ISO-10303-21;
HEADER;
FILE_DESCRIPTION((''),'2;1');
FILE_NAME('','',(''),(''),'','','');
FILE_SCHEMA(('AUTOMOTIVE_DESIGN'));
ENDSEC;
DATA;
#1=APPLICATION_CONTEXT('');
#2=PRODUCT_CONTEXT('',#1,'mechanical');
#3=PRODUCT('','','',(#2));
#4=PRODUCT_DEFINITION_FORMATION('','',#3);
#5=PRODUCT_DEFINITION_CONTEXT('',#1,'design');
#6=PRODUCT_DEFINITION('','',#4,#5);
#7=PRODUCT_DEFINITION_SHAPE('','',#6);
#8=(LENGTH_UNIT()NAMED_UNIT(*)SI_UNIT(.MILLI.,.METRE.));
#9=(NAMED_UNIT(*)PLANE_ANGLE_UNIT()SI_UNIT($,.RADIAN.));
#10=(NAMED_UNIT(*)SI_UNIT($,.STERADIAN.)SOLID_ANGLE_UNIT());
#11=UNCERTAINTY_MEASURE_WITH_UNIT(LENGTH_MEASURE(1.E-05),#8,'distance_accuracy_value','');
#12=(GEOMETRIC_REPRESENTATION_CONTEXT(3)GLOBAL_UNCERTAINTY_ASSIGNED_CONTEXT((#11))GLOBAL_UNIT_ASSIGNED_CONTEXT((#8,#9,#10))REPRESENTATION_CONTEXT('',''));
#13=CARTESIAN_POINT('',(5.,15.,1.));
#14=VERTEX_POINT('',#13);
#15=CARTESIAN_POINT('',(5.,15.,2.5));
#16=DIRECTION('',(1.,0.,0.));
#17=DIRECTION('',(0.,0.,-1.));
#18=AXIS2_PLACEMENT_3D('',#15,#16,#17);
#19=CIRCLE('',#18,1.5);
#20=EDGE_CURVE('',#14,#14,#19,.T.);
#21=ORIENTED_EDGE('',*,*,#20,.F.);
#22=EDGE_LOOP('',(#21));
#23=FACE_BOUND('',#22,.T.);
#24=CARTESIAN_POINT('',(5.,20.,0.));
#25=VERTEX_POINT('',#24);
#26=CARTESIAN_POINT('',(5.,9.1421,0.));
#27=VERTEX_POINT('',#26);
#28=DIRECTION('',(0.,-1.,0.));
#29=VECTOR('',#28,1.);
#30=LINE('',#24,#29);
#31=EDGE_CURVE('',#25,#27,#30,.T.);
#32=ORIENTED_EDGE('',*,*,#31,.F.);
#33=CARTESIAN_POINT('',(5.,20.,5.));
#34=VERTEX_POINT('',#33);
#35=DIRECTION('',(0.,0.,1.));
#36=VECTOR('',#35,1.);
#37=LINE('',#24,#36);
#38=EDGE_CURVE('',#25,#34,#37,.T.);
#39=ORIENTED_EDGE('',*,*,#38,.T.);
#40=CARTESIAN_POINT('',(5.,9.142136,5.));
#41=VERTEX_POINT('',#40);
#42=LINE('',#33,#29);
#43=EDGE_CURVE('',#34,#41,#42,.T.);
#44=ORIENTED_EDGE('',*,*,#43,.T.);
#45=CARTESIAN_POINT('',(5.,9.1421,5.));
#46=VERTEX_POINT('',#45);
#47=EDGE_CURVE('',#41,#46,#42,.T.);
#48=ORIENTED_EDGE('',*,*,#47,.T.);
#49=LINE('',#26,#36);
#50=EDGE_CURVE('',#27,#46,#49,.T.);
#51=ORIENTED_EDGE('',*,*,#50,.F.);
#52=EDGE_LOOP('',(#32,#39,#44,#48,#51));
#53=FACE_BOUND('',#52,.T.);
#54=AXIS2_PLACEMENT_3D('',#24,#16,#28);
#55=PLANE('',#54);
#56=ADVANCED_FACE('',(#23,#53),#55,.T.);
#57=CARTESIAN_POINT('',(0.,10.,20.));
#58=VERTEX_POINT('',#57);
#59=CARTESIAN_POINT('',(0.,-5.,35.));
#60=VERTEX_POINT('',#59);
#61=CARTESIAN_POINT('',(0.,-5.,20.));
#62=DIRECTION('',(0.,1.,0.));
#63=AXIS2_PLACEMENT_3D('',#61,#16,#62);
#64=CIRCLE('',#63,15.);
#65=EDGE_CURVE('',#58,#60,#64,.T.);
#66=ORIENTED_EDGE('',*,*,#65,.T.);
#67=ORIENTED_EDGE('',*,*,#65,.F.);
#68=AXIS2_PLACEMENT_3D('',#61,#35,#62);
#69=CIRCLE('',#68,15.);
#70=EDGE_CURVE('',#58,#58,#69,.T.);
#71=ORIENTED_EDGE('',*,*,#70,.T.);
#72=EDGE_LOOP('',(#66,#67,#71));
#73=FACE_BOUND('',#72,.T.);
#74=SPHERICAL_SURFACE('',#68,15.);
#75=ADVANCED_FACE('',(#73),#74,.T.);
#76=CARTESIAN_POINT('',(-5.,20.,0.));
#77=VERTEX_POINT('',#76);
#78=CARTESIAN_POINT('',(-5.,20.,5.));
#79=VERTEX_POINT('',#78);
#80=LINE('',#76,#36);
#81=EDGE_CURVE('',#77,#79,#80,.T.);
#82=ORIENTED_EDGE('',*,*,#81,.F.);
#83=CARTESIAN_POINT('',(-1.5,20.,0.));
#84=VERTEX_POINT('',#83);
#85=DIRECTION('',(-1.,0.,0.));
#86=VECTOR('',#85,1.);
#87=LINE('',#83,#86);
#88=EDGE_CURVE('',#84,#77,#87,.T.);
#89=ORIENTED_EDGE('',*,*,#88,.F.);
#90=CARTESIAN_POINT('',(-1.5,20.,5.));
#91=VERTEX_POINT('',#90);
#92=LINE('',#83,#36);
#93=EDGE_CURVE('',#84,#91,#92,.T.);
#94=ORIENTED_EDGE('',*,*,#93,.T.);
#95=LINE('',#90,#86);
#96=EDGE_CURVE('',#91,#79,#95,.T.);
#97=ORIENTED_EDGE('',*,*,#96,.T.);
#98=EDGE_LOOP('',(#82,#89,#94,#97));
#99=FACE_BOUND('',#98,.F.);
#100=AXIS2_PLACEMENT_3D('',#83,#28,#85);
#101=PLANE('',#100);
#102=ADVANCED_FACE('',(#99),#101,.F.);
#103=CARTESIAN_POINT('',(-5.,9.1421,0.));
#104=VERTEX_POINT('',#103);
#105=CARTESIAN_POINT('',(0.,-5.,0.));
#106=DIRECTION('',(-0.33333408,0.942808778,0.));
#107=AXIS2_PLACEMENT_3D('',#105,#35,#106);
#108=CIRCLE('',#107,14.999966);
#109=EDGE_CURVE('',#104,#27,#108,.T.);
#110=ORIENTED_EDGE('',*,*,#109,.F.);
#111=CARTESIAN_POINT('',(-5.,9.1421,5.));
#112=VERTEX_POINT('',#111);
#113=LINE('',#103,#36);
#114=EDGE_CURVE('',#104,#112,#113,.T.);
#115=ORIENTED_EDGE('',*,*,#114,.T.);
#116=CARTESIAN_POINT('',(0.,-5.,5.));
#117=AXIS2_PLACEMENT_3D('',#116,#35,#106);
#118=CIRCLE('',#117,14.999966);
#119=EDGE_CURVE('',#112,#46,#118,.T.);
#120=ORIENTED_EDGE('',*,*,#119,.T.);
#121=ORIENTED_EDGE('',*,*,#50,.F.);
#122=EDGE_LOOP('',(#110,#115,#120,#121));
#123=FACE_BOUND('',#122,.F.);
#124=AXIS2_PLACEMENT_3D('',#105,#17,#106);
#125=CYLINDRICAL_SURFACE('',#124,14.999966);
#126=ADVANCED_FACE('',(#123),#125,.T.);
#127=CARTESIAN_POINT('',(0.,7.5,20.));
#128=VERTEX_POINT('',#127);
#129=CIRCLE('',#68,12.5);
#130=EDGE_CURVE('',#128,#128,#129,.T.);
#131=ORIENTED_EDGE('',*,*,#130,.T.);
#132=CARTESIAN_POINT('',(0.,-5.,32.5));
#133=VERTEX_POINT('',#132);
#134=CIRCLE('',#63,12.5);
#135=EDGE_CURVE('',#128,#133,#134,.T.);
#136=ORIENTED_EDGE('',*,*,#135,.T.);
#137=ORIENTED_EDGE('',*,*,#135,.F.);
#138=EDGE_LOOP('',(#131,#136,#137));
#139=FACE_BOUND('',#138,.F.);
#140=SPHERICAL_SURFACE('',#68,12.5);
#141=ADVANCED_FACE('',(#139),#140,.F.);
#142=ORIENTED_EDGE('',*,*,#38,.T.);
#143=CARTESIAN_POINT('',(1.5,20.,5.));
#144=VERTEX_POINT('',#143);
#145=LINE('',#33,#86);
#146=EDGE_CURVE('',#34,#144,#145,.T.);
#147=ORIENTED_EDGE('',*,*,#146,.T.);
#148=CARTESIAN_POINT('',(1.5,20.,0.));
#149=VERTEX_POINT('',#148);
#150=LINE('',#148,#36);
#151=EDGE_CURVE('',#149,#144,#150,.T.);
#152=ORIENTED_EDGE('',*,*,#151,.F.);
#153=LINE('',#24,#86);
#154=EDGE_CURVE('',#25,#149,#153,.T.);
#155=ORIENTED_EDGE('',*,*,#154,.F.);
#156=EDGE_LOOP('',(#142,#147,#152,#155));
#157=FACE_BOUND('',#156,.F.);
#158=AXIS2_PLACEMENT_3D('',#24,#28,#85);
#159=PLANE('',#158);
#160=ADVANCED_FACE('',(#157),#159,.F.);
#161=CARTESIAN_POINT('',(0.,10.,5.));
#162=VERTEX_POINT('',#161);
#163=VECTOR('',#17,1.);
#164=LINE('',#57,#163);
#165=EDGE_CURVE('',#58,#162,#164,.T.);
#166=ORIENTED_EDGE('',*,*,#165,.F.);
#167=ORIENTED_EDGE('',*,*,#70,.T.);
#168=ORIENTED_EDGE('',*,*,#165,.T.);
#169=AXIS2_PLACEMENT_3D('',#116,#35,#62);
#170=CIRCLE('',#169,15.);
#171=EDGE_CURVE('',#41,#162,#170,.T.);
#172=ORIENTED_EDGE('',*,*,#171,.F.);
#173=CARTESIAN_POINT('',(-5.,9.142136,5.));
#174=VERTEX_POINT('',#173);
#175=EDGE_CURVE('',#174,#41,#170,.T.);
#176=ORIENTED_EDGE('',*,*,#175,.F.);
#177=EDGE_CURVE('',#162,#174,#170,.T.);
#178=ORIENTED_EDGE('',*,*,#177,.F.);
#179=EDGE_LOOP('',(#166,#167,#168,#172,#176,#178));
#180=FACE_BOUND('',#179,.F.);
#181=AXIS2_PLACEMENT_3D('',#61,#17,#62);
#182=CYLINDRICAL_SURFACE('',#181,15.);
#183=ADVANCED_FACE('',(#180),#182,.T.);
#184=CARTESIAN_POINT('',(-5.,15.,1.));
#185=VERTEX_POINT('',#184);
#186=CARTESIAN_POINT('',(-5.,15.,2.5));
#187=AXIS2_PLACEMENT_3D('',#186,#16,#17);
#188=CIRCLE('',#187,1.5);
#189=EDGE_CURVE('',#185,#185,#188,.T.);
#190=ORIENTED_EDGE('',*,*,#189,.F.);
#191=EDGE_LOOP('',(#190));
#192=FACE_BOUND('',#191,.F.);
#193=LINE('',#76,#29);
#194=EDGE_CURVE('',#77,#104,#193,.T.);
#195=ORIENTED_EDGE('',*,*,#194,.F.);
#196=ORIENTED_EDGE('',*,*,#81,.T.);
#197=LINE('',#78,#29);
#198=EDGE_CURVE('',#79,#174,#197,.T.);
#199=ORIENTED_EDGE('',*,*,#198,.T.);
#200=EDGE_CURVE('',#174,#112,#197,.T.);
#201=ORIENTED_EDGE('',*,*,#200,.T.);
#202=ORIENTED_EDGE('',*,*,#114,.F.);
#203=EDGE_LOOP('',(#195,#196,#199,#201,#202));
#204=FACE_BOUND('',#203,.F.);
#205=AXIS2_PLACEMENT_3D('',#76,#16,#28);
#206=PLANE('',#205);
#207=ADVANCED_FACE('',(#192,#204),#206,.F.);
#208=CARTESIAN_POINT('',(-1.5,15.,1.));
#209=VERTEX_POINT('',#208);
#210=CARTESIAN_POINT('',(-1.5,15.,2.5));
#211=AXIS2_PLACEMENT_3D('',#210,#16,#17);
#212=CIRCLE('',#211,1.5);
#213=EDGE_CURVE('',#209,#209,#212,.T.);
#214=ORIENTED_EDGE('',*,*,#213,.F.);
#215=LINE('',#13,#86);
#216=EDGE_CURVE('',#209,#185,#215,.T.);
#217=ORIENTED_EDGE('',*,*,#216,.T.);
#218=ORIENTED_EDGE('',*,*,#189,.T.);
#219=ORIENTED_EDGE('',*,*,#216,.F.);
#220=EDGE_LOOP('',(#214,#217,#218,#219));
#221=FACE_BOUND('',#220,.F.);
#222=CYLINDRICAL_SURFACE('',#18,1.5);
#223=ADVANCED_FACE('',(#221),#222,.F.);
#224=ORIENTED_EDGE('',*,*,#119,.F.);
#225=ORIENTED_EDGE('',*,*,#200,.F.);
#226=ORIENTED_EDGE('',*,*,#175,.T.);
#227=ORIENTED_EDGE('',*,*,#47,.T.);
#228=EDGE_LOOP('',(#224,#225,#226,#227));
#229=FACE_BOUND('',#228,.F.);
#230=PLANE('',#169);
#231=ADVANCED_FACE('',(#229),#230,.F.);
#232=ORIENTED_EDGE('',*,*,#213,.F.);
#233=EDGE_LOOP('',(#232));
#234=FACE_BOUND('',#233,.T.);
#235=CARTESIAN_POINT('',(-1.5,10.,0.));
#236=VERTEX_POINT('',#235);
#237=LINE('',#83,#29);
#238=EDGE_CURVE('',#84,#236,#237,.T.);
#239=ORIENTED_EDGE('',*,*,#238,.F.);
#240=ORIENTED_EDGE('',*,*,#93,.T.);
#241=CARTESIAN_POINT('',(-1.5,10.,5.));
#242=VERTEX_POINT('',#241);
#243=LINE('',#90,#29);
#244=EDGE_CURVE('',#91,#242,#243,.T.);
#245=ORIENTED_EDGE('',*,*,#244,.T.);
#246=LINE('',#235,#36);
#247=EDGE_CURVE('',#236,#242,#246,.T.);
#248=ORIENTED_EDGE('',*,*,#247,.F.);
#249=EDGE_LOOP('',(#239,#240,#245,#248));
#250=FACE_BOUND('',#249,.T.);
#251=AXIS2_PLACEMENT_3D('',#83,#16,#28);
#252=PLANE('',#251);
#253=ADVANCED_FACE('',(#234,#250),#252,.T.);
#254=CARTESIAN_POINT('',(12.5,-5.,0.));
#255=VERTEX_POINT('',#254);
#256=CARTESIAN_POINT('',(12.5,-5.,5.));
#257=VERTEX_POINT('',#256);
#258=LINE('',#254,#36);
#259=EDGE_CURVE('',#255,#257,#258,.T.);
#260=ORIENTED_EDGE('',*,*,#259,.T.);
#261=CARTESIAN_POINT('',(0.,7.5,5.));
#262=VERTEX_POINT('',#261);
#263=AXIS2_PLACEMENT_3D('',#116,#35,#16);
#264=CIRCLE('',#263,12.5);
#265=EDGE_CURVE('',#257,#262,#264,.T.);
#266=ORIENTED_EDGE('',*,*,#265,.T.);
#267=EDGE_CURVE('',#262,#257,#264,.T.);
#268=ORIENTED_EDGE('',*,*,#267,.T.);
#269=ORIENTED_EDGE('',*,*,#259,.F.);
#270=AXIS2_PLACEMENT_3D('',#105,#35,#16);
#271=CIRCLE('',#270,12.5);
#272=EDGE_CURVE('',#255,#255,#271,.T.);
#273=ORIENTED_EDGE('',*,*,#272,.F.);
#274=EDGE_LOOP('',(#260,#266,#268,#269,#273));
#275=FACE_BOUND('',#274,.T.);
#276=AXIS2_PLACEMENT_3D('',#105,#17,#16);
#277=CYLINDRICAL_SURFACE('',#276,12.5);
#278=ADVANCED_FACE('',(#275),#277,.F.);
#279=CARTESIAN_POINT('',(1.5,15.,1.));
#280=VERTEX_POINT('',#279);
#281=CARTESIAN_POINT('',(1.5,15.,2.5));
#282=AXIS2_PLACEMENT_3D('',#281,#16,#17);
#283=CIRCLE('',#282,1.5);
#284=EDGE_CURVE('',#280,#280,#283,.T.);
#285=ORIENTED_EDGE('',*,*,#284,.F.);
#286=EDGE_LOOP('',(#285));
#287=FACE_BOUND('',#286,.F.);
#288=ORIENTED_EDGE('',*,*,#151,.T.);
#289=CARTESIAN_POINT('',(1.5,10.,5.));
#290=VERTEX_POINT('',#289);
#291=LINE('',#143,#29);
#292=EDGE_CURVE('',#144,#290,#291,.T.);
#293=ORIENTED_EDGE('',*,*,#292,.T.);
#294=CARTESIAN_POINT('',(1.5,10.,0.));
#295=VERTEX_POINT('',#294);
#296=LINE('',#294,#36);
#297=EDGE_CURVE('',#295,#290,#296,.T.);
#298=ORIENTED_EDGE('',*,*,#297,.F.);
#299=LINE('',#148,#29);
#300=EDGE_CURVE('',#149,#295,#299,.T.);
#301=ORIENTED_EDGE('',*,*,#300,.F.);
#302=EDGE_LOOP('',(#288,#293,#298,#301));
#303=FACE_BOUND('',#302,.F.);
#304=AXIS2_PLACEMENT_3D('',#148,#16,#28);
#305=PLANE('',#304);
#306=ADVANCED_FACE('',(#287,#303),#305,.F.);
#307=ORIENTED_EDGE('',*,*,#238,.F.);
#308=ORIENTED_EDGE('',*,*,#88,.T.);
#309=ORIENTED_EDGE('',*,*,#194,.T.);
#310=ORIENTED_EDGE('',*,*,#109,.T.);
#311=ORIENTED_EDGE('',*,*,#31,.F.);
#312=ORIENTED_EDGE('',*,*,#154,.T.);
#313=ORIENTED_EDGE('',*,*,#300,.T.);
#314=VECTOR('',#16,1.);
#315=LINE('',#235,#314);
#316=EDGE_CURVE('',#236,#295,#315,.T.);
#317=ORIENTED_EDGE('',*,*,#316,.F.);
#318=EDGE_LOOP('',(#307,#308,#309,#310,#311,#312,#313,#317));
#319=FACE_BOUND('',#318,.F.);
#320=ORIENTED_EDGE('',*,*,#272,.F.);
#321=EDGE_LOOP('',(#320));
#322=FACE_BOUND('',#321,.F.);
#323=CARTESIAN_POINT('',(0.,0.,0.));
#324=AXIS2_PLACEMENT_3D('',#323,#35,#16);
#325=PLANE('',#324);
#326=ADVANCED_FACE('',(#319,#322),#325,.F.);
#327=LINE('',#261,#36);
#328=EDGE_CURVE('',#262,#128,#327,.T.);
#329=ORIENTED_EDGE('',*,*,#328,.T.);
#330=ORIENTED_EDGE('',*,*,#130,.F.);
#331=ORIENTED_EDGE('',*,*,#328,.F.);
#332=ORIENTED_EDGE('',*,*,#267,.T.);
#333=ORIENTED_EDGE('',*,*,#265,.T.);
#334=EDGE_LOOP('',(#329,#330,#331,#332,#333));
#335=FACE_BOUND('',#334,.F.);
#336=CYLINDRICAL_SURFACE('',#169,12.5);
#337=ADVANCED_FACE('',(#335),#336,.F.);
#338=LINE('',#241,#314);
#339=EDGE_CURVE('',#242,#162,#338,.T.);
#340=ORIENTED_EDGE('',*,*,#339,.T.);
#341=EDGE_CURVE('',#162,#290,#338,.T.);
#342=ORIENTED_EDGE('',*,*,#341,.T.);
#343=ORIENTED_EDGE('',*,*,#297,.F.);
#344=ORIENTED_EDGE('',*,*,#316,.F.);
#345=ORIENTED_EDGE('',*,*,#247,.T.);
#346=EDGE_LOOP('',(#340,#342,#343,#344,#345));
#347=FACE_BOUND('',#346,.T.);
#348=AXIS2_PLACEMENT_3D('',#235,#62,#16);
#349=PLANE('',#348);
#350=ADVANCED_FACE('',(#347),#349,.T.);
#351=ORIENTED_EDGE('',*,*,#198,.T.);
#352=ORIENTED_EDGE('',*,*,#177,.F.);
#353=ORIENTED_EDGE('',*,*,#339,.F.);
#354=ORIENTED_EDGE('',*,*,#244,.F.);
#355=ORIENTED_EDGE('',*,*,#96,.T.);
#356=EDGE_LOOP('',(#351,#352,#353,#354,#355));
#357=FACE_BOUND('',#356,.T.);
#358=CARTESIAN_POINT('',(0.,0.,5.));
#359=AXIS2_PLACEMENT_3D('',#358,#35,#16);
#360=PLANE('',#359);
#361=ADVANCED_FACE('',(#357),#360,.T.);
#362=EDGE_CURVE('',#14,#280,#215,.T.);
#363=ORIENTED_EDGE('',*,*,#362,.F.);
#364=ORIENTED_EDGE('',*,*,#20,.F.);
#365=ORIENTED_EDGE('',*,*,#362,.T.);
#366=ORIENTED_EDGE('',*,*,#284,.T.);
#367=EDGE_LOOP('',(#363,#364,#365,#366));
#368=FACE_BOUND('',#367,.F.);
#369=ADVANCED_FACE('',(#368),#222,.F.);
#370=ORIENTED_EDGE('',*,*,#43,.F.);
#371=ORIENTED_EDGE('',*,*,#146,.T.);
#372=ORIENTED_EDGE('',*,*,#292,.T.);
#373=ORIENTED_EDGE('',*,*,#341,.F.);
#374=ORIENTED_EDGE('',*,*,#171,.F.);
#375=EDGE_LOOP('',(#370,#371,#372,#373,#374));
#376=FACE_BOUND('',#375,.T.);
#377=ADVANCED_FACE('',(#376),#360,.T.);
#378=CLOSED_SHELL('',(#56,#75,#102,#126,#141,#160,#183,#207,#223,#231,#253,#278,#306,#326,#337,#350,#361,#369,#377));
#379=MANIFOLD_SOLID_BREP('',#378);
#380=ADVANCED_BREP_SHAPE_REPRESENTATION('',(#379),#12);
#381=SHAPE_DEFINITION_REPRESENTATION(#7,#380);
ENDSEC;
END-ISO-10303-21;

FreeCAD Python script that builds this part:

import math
import FreeCAD as App
import Part
import Sketcher
Q = App.Units.Quantity


def add_polygon(sketch, points):
    """Adds a closed chain of lines whose ends are joined by coincident constraints."""
    first, n = sketch.GeometryCount, len(points)
    for a, b in zip(points, points[1:] + points[:1]):
        sketch.addGeometry(Part.LineSegment(App.Vector(*a, 0), App.Vector(*b, 0)), False)
    for i in range(n):
        sketch.addConstraint(Sketcher.Constraint("Coincident", first + i, 2, first + (i + 1) % n, 1))

doc = App.newDocument("Part")
body = doc.addObject("PartDesign::Body", "Body")

# Sketch on XY plane
sketch1 = body.newObject("Sketcher::SketchObject", "Sketch")
sketch1.AttachmentSupport = (doc.getObject("XY_Plane"), [""])
sketch1.MapMode = "FlatFace"
sketch1.addGeometry([
    Part.LineSegment(App.Vector(-1.5, 20, 0), App.Vector(-5, 20, 0)),  # 0
    Part.LineSegment(App.Vector(-5, 20, 0), App.Vector(-5, 9.1, 0)),  # 1
    Part.ArcOfCircle(Part.Circle(App.Vector(0, -5, 0), App.Vector(0, 0, 1), 15), math.radians(109), math.radians(431)),  # 2
    Part.LineSegment(App.Vector(5, 9.1, 0), App.Vector(5, 20, 0)),  # 3
    Part.LineSegment(App.Vector(5, 20, 0), App.Vector(1.5, 20, 0)),  # 4
    Part.LineSegment(App.Vector(1.5, 20, 0), App.Vector(1.5, 10, 0)),  # 5
    Part.LineSegment(App.Vector(1.5, 10, 0), App.Vector(-1.5, 10, 0)),  # 6
    Part.LineSegment(App.Vector(-1.5, 10, 0), App.Vector(-1.5, 20, 0)),  # 7
    Part.Circle(App.Vector(0, -5, 0), App.Vector(0, 0, 1), 12.5),  # 8
], False)
sketch1.addConstraint([
    Sketcher.Constraint("Coincident", 0, 2, 1, 1),
    Sketcher.Constraint("Coincident", 1, 2, 2, 1),
    Sketcher.Constraint("Coincident", 2, 2, 3, 1),
    Sketcher.Constraint("Coincident", 3, 2, 4, 1),
    Sketcher.Constraint("Coincident", 4, 2, 5, 1),
    Sketcher.Constraint("Coincident", 5, 2, 6, 1),
    Sketcher.Constraint("Coincident", 6, 2, 7, 1),
    Sketcher.Constraint("Coincident", 7, 2, 0, 1),
    Sketcher.Constraint("Horizontal", 0),
    Sketcher.Constraint("Vertical", 1),
    Sketcher.Constraint("Vertical", 3),
    Sketcher.Constraint("Horizontal", 4),
    Sketcher.Constraint("Vertical", 5),
    Sketcher.Constraint("Horizontal", 6),
    Sketcher.Constraint("Vertical", 7),
    Sketcher.Constraint("Coincident", 8, 3, 2, 3),
    Sketcher.Constraint("Symmetric", 1, 2, 2, 2, -2),
    Sketcher.Constraint("Symmetric", 4, 2, 7, 2, -2),
    Sketcher.Constraint("Diameter", 8, Q("25 mm")),
    Sketcher.Constraint("Radius", 2, Q("15 mm")),
    Sketcher.Constraint("DistanceY", 2, 3, 0, 2, Q("25 mm")),
    Sketcher.Constraint("DistanceX", -1, 1, 4, 2, Q("1.5 mm")),
    Sketcher.Constraint("DistanceY", 5, 2, 5, 1, Q("10 mm")),
    Sketcher.Constraint("DistanceX", 0, 2, 0, 1, Q("3.5 mm")),
    Sketcher.Constraint("DistanceY", 2, 3, -1, 1, Q("5 mm")),
])
pad1 = body.newObject("PartDesign::Pad", "Pad")
pad1.Profile = sketch1
pad1.Length = 5

# Sketch on YZ plane
sketch2 = body.newObject("Sketcher::SketchObject", "Sketch001")
sketch2.AttachmentSupport = (doc.getObject("YZ_Plane"), [""])
sketch2.MapMode = "FlatFace"
sketch2.AttachmentOffset = App.Placement(App.Vector(0, 0, 5), App.Rotation())
sketch2.addGeometry(Part.Circle(App.Vector(15, 2.5, 0), App.Vector(0, 0, 1), 1.5), False)
sketch2.addConstraint([
    Sketcher.Constraint("Diameter", 0, Q("3 mm")),
    Sketcher.Constraint("DistanceX", -1, 1, 0, 3, Q("15 mm")),
    Sketcher.Constraint("DistanceY", -1, 1, 0, 3, Q("2.5 mm")),
])
pocket1 = body.newObject("PartDesign::Pocket", "Pocket")
pocket1.Profile = sketch2
pocket1.Length = 10

# Sketch on YZ plane
sketch3 = body.newObject("Sketcher::SketchObject", "Sketch002")
sketch3.AttachmentSupport = (doc.getObject("YZ_Plane"), [""])
sketch3.MapMode = "FlatFace"
add_polygon(sketch3, [(7.5, 20), (7.5, 5), (10, 5), (10, 20)])  # lines 0-3
sketch3.addGeometry(Part.LineSegment(App.Vector(-5, 5, 0), App.Vector(-5, 20, 0)), True)  # axis
sketch3.addConstraint([
    Sketcher.Constraint("Vertical", 0),
    Sketcher.Constraint("Horizontal", 1),
    Sketcher.Constraint("Vertical", 2),
    Sketcher.Constraint("Horizontal", 3),
    Sketcher.Constraint("Vertical", 4),
    Sketcher.Constraint("Horizontal", 1, 2, 4, 1),
    Sketcher.Constraint("Horizontal", 3, 2, 4, 2),
    Sketcher.Constraint("DistanceY", 0, 2, 0, 1, Q("15 mm")),
    Sketcher.Constraint("DistanceX", 1, 1, 1, 2, Q("2.5 mm")),
    Sketcher.Constraint("DistanceX", 4, 1, 1, 2, Q("15 mm")),
    Sketcher.Constraint("DistanceY", -1, 1, 0, 2, Q("5 mm")),
    Sketcher.Constraint("DistanceX", -1, 1, 1, 2, Q("10 mm")),
])
revolution = body.newObject("PartDesign::Revolution", "Revolution")
revolution.Profile = sketch3
revolution.ReferenceAxis = (sketch3, ["Axis0"])
revolution.Angle = 360

# Sketch on YZ plane
sketch4 = body.newObject("Sketcher::SketchObject", "Sketch003")
sketch4.AttachmentSupport = (doc.getObject("YZ_Plane"), [""])
sketch4.MapMode = "FlatFace"
sketch4.addGeometry([
    Part.ArcOfCircle(Part.Circle(App.Vector(-5, 20, 0), App.Vector(0, 0, 1), 12.5), math.radians(0), math.radians(90)),
    Part.LineSegment(App.Vector(7.5, 20, 0), App.Vector(10, 20, 0)),
    Part.ArcOfCircle(Part.Circle(App.Vector(-5, 20, 0), App.Vector(0, 0, 1), 15), math.radians(0), math.radians(90)),
    Part.LineSegment(App.Vector(-5, 35, 0), App.Vector(-5, 32.5, 0)),
], False)
sketch4.addGeometry(Part.LineSegment(App.Vector(-5, 20, 0), App.Vector(-5, 35, 0)), True)  # axis
sketch4.addConstraint([
    Sketcher.Constraint("Coincident", 0, 1, 1, 1),
    Sketcher.Constraint("Coincident", 1, 2, 2, 1),
    Sketcher.Constraint("Coincident", 2, 2, 3, 1),
    Sketcher.Constraint("Coincident", 3, 2, 0, 2),
    Sketcher.Constraint("Horizontal", 1),
    Sketcher.Constraint("Vertical", 3),
    Sketcher.Constraint("Vertical", 4),
    Sketcher.Constraint("Coincident", 2, 3, 0, 3),
    Sketcher.Constraint("Coincident", 4, 1, 0, 3),
    Sketcher.Constraint("Coincident", 4, 2, 2, 2),
    Sketcher.Constraint("Horizontal", 2, 3, 0, 1),
    Sketcher.Constraint("Radius", 2, Q("15 mm")),
    Sketcher.Constraint("Radius", 0, Q("12.5 mm")),
    Sketcher.Constraint("DistanceX", 0, 3, -1, 1, Q("5 mm")),
    Sketcher.Constraint("DistanceY", -1, 1, 0, 3, Q("20 mm")),
])
revolution2 = body.newObject("PartDesign::Revolution", "Revolution001")
revolution2.Profile = sketch4
revolution2.ReferenceAxis = (sketch4, ["Axis0"])
revolution2.Angle = 360

doc.recompute()
